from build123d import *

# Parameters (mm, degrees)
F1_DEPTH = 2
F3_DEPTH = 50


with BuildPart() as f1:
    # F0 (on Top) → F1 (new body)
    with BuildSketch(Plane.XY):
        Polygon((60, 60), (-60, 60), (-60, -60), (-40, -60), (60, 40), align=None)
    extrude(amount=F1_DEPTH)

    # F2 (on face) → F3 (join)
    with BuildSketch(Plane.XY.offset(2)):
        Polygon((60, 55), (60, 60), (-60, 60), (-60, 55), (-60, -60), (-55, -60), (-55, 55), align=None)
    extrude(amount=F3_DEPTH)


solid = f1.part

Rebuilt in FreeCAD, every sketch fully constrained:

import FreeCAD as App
import Part
import Sketcher
from FreeCAD import Vector
Q = App.Units.Quantity


def add_polygon(sketch, points):
    """Adds a closed chain of lines whose ends are joined by coincident constraints."""
    first, n = sketch.GeometryCount, len(points)
    for a, b in zip(points, points[1:] + points[:1]):
        sketch.addGeometry(Part.LineSegment(App.Vector(*a, 0), App.Vector(*b, 0)), False)
    for i in range(n):
        sketch.addConstraint(Sketcher.Constraint("Coincident", first + i, 2, first + (i + 1) % n, 1))

doc = App.newDocument("Part")
body = doc.addObject("PartDesign::Body", "Body")

sketch1 = body.newObject("Sketcher::SketchObject", "Sketch")
sketch1.AttachmentSupport = (doc.getObject("XY_Plane"), [""])
sketch1.MapMode = "FlatFace"
add_polygon(sketch1, [(60, 60), (-60, 60), (-60, -60), (-40, -60), (60, 40)])
sketch1.addConstraint(Sketcher.Constraint("Horizontal", 0))
sketch1.addConstraint(Sketcher.Constraint("Vertical", 1))
sketch1.addConstraint(Sketcher.Constraint("Horizontal", 2))
sketch1.addConstraint(Sketcher.Constraint("Vertical", 4))
sketch1.addConstraint(Sketcher.Constraint("Symmetric", 1, 2, 4, 2, -1, 1))
sketch1.addConstraint(Sketcher.Constraint("Equal", 0, 1))
sketch1.addConstraint(Sketcher.Constraint("Equal", 2, 4))
sketch1.addConstraint(Sketcher.Constraint("DistanceX", 0, 2, 0, 1, Q("120 mm")))
sketch1.addConstraint(Sketcher.Constraint("DistanceX", 2, 1, 2, 2, Q("20 mm")))
pad1 = body.newObject("PartDesign::Pad", "Pad")
pad1.Profile = sketch1
pad1.Length = 2

sketch2 = body.newObject("Sketcher::SketchObject", "Sketch001")
sketch2.AttachmentSupport = (doc.getObject("XY_Plane"), [""])
sketch2.MapMode = "FlatFace"
sketch2.AttachmentOffset = App.Placement(Vector(0, 0, 2), App.Rotation())
add_polygon(sketch2, [(60, 55), (60, 60), (-60, 60), (-60, -60), (-55, -60), (-55, 55)])
sketch2.addConstraint(Sketcher.Constraint("Vertical", 0))
sketch2.addConstraint(Sketcher.Constraint("Horizontal", 1))
sketch2.addConstraint(Sketcher.Constraint("Vertical", 2))
sketch2.addConstraint(Sketcher.Constraint("Horizontal", 3))
sketch2.addConstraint(Sketcher.Constraint("Vertical", 4))
sketch2.addConstraint(Sketcher.Constraint("Horizontal", 5))
sketch2.addConstraint(Sketcher.Constraint("Symmetric", 0, 2, 2, 2, -1, 1))
sketch2.addConstraint(Sketcher.Constraint("Equal", 3, 0))
sketch2.addConstraint(Sketcher.Constraint("Equal", 1, 2))
sketch2.addConstraint(Sketcher.Constraint("DistanceX", 1, 2, 1, 1, Q("120 mm")))
sketch2.addConstraint(Sketcher.Constraint("DistanceX", 3, 1, 3, 2, Q("5 mm")))
pad2 = body.newObject("PartDesign::Pad", "Pad001")
pad2.Profile = sketch2
pad2.Length = 50

doc.recompute()
